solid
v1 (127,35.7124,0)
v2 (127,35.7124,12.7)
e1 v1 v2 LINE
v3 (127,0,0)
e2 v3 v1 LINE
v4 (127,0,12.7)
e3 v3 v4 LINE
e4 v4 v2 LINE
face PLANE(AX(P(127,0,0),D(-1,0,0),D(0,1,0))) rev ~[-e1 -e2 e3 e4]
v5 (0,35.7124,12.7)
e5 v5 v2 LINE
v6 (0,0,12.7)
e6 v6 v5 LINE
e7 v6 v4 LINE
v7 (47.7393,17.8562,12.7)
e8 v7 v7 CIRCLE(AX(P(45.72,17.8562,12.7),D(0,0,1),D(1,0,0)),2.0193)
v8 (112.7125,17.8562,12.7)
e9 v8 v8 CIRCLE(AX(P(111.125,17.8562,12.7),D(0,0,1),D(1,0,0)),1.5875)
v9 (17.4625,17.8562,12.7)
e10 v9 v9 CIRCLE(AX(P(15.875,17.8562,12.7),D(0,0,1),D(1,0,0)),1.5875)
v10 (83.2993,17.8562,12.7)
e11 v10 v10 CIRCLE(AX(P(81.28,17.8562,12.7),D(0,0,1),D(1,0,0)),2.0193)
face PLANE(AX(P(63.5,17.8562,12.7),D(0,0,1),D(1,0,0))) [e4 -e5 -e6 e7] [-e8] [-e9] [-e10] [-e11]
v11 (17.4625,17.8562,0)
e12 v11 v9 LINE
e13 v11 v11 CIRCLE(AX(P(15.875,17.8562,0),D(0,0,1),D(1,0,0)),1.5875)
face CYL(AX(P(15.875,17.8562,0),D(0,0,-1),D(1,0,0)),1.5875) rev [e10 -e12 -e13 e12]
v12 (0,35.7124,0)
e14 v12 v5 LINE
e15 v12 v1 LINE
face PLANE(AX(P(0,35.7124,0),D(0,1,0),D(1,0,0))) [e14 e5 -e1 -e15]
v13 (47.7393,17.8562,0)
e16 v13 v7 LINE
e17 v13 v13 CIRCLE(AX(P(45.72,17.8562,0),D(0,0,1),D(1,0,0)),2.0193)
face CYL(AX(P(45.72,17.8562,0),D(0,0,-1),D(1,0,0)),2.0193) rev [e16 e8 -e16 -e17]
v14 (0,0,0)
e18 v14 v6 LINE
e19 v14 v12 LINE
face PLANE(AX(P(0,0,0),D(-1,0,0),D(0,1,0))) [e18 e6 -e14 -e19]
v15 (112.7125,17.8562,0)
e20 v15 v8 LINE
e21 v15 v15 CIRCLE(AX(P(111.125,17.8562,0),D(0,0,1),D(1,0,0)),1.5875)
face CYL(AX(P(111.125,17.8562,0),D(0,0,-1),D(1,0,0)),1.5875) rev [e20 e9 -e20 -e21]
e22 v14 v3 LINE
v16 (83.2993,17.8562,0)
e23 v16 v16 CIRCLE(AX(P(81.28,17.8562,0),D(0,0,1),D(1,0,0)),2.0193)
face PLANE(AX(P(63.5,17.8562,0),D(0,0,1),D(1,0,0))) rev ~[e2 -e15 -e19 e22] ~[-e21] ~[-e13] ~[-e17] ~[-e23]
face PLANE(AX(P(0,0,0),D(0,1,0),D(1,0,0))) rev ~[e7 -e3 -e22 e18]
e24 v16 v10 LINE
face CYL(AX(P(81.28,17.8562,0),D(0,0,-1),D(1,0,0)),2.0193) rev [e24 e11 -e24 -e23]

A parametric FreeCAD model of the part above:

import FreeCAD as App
import Part
import Sketcher
Q = App.Units.Quantity


def add_polygon(sketch, points):
    """Adds a closed chain of lines whose ends are joined by coincident constraints."""
    first, n = sketch.GeometryCount, len(points)
    for a, b in zip(points, points[1:] + points[:1]):
        sketch.addGeometry(Part.LineSegment(App.Vector(*a, 0), App.Vector(*b, 0)), False)
    for i in range(n):
        sketch.addConstraint(Sketcher.Constraint("Coincident", first + i, 2, first + (i + 1) % n, 1))

doc = App.newDocument("Part")
params = doc.addObject("Spreadsheet::Sheet", "Params")
for row, (alias, value) in enumerate([
    ("sketch1_width", "5 in"),
    ("sketch1_diameter", "0.125 in"),
    ("sketch1_diameter2", "0.159 in"),
    ("sketch1_height", "1.406 in"),
    ("pad1_length", "0.5 in"),
], start=1):
    params.set(f"A{row}", alias)
    params.set(f"B{row}", "=" + value)
    params.setAlias(f"B{row}", alias)

body = doc.addObject("PartDesign::Body", "Body")

# Sketch on XY plane
sketch1 = body.newObject("Sketcher::SketchObject", "Sketch")
sketch1.AttachmentSupport = (doc.getObject("XY_Plane"), [""])
sketch1.MapMode = "FlatFace"
add_polygon(sketch1, [(0, 35.7), (0, 0), (127, 0), (127, 35.7)])  # lines 0-3
sketch1.addGeometry(Part.Circle(App.Vector(15.9, 17.9, 0), App.Vector(0, 0, 1), 1.6), False)  # 4
sketch1.addGeometry(Part.Circle(App.Vector(45.7, 17.9, 0), App.Vector(0, 0, 1), 2), False)  # 5
sketch1.addGeometry(Part.Circle(App.Vector(81.3, 17.9, 0), App.Vector(0, 0, 1), 2), False)  # 6
sketch1.addGeometry(Part.Circle(App.Vector(111.1, 17.9, 0), App.Vector(0, 0, 1), 1.6), False)  # 7
sketch1.addConstraint(Sketcher.Constraint("Vertical", 0))
sketch1.addConstraint(Sketcher.Constraint("Horizontal", 1))
sketch1.addConstraint(Sketcher.Constraint("Vertical", 2))
sketch1.addConstraint(Sketcher.Constraint("Horizontal", 3))
sketch1.addConstraint(Sketcher.Constraint("Coincident", 0, 2, -1, 1))
sketch1.addConstraint(Sketcher.Constraint("Equal", 5, 6))
sketch1.addConstraint(Sketcher.Constraint("Equal", 4, 7))
sketch1.addConstraint(Sketcher.Constraint("Horizontal", 4, 3, 5, 3))
sketch1.addConstraint(Sketcher.Constraint("Horizontal", 5, 3, 6, 3))
sketch1.addConstraint(Sketcher.Constraint("Horizontal", 6, 3, 7, 3))
sketch1.addConstraint(Sketcher.Constraint("DistanceX", 1, 1, 1, 2, Q("5 in")))
sketch1.addConstraint(Sketcher.Constraint("Diameter", 4, Q("0.125 in")))
sketch1.addConstraint(Sketcher.Constraint("Diameter", 5, Q("0.159 in")))
sketch1.addConstraint(Sketcher.Constraint("DistanceX", -1, 1, 5, 3, Q("1.8 in")))
sketch1.addConstraint(Sketcher.Constraint("DistanceX", -1, 1, 6, 3, Q("3.2 in")))
sketch1.addConstraint(Sketcher.Constraint("DistanceY", 0, 2, 0, 1, Q("1.406 in")))
sketch1.addConstraint(Sketcher.Constraint("DistanceX", 4, 3, 7, 3, Q("3.75 in")))
sketch1.addConstraint(Sketcher.Constraint("DistanceX", -1, 1, 4, 3, Q("0.625 in")))
sketch1.addConstraint(Sketcher.Constraint("DistanceY", -1, 1, 4, 3, Q("0.703 in")))
sketch1.setExpression("Constraints[14]", "Params.sketch1_width")
sketch1.setExpression("Constraints[15]", "Params.sketch1_diameter")
sketch1.setExpression("Constraints[16]", "Params.sketch1_diameter2")
sketch1.setExpression("Constraints[19]", "Params.sketch1_height")
pad1 = body.newObject("PartDesign::Pad", "Pad")
pad1.Profile = sketch1
pad1.setExpression("Length", "Params.pad1_length")

doc.recompute()
